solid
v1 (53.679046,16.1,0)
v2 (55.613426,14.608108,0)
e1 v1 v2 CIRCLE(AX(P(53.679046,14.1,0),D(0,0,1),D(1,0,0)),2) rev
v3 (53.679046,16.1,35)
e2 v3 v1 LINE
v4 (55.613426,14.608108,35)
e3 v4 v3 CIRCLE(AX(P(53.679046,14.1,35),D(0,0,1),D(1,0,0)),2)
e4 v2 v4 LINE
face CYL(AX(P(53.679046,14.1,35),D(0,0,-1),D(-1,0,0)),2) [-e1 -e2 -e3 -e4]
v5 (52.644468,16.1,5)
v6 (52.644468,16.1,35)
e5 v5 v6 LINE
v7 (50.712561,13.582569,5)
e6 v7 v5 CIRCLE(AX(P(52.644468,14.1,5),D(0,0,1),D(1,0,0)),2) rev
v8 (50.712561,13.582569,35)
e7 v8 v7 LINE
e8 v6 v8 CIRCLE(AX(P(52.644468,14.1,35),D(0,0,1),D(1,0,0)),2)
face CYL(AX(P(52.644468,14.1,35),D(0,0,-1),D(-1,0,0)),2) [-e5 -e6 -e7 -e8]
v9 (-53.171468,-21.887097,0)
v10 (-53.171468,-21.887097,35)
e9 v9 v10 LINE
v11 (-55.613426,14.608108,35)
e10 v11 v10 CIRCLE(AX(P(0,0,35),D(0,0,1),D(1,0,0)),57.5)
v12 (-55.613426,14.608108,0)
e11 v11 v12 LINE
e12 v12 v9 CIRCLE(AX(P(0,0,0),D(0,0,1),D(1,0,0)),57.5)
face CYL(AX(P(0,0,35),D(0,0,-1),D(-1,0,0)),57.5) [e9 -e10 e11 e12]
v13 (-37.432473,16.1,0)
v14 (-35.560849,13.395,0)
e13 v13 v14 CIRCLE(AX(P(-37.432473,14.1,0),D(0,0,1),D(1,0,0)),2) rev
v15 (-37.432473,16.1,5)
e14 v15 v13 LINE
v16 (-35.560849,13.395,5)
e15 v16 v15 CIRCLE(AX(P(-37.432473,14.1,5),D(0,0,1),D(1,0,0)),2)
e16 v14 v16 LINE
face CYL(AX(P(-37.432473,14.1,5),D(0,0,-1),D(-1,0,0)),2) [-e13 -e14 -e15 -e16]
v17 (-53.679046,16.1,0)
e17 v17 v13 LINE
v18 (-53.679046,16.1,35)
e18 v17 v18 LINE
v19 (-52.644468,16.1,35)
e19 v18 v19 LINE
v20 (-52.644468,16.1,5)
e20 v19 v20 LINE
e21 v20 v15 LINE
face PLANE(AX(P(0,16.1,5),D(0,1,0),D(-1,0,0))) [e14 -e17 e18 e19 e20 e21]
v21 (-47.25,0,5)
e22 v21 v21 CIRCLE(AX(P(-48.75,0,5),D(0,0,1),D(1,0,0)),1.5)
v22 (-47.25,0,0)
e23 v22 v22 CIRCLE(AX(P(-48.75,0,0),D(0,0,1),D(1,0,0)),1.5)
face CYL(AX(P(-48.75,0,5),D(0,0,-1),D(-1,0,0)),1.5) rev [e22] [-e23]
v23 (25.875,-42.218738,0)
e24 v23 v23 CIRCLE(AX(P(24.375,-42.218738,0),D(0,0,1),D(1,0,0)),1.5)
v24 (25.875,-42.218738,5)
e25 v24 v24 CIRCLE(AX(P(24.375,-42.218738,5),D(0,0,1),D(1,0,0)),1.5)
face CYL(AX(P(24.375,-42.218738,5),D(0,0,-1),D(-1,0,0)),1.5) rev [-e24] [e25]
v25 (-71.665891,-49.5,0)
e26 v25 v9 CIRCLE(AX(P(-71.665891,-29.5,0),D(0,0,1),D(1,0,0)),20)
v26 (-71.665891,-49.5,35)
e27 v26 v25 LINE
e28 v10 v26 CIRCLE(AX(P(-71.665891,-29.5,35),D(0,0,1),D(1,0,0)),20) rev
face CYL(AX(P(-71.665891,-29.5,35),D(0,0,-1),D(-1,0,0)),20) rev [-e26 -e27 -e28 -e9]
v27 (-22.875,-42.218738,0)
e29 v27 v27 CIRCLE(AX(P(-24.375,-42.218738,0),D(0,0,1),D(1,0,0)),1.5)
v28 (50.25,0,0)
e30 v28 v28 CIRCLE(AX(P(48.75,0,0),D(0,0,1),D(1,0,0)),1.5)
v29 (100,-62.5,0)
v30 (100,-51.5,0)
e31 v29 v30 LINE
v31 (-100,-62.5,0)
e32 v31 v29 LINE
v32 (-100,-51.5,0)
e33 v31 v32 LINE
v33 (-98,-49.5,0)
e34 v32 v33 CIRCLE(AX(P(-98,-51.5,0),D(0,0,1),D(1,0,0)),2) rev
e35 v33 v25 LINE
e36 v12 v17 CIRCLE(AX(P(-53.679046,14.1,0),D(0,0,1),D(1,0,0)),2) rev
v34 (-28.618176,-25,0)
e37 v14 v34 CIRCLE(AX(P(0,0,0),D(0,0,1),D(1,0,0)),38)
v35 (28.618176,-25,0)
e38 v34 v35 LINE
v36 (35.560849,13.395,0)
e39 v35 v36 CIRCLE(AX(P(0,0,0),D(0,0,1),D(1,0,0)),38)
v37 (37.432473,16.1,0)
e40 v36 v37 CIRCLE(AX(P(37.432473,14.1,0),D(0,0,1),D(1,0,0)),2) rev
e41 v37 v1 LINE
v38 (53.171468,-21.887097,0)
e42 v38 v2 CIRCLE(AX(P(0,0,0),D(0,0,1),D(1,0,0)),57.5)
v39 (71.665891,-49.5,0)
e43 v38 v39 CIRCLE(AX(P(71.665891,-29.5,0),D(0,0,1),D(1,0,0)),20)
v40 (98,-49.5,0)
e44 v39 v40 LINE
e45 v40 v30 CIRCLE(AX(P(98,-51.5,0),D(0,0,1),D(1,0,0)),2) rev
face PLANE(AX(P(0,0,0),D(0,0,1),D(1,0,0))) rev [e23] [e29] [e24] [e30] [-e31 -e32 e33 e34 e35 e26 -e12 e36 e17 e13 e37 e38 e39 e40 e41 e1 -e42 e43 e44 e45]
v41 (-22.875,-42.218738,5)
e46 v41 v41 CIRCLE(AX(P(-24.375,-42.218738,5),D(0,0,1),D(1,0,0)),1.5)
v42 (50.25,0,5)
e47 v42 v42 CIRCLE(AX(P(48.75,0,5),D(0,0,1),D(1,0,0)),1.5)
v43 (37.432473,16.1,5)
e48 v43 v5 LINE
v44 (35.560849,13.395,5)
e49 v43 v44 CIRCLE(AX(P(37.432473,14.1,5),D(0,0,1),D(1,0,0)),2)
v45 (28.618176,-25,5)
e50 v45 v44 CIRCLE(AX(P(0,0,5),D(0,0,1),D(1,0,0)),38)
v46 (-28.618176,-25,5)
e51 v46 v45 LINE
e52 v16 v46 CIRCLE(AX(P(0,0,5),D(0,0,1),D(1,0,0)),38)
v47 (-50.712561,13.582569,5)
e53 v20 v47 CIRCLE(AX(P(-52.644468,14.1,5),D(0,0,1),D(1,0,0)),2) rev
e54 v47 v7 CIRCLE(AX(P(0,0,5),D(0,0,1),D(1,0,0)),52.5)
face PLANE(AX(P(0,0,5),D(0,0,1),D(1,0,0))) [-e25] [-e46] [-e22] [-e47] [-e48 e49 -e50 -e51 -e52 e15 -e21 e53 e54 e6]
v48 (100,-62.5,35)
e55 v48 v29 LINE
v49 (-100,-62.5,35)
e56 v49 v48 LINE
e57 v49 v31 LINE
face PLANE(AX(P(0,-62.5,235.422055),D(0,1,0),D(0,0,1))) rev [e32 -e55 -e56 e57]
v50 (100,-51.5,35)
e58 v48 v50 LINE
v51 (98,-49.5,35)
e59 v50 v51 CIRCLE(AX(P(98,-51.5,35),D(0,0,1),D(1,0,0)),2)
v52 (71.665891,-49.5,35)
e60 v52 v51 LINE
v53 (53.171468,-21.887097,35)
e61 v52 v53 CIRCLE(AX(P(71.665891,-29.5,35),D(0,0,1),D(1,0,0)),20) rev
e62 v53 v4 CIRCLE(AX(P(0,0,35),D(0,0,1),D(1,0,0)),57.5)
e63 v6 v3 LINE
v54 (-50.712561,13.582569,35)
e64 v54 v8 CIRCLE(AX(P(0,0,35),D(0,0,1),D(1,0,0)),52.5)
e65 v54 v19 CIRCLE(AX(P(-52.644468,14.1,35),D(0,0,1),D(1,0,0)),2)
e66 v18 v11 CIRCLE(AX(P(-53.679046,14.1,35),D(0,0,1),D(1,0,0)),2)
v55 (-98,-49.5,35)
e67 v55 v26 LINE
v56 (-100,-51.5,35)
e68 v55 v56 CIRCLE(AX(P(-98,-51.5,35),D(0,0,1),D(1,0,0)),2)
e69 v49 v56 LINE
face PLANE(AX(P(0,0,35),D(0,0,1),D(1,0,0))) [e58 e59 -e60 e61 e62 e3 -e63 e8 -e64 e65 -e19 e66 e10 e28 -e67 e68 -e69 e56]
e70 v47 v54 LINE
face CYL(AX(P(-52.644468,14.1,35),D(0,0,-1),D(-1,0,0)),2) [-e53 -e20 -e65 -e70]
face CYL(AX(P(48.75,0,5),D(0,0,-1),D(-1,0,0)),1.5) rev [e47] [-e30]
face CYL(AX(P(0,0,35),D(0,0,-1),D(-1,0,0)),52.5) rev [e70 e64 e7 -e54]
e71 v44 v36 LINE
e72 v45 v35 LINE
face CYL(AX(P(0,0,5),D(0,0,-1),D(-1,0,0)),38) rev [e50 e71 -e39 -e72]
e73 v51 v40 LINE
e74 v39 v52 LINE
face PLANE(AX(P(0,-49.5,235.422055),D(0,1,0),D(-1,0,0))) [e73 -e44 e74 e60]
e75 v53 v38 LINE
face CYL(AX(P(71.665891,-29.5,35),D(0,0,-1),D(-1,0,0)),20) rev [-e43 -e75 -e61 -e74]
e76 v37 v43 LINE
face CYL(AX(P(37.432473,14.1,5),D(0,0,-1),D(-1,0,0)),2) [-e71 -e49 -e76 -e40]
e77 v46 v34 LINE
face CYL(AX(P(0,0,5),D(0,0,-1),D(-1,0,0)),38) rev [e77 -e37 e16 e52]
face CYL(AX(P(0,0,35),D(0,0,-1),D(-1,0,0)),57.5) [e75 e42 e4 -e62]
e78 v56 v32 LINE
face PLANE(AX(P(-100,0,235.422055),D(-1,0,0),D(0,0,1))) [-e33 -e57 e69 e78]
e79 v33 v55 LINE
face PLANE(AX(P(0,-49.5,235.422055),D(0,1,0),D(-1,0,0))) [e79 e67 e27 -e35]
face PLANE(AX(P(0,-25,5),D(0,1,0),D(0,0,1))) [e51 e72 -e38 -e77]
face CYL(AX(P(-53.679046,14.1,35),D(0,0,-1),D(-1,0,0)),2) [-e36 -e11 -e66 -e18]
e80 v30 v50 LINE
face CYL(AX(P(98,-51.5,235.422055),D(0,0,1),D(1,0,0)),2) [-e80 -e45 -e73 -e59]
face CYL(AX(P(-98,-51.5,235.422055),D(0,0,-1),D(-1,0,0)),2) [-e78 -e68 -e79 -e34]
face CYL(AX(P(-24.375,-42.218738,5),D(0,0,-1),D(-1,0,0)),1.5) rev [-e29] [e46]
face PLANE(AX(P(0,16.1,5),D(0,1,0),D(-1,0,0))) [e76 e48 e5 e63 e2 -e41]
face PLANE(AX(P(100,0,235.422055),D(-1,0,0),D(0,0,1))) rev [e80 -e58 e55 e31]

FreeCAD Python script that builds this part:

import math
import FreeCAD as App
import Part
import Sketcher

V = App.Vector
Q = App.Units.Quantity


def edges_at(feature, points):
    """Names of the edges that pass closest to the given points."""
    edges = feature.Shape.Edges
    near = lambda p: min(range(len(edges)), key=lambda i: edges[i].distToShape(Part.Vertex(*p))[0])
    return sorted({f"Edge{near(p) + 1}" for p in points})

doc = App.newDocument("Part")
body = doc.addObject("PartDesign::Body", "Body")

# Sketch on XY plane
sketch1 = body.newObject("Sketcher::SketchObject", "Sketch")
sketch1.AttachmentSupport = (doc.getObject("XY_Plane"), [""])
sketch1.MapMode = "FlatFace"
sketch1.addGeometry([
    Part.LineSegment(V(-34.4, 16.1, 0), V(-50, 16.1, 0)),  # 0
    Part.ArcOfCircle(Part.Circle(V(0, 0, 0), V(0, 0, 1), 52.5), math.radians(162), math.radians(360)),  # 1
    Part.ArcOfCircle(Part.Circle(V(0, 0, 0), V(0, 0, 1), 52.5), math.radians(0), math.radians(17.86)),  # 2
    Part.LineSegment(V(50, 16.1, 0), V(34.4, 16.1, 0)),  # 3
    Part.ArcOfCircle(Part.Circle(V(0, 0, 0), V(0, 0, 1), 38), math.radians(0), math.radians(25)),  # 4
    Part.ArcOfCircle(Part.Circle(V(0, 0, 0), V(0, 0, 1), 38), math.radians(-41), math.radians(0)),  # 5
    Part.LineSegment(V(28.6, -25, 0), V(-28.6, -25, 0)),  # 6
    Part.ArcOfCircle(Part.Circle(V(0, 0, 0), V(0, 0, 1), 38), math.radians(155), math.radians(221)),  # 7
    Part.Circle(V(-24.4, -42.2, 0), V(0, 0, 1), 1.5),  # 8
    Part.Circle(V(24.4, -42.2, 0), V(0, 0, 1), 1.5),  # 9
    Part.Circle(V(-48.8, 0, 0), V(0, 0, 1), 1.5),  # 10
    Part.Circle(V(48.8, 0, 0), V(0, 0, 1), 1.5),  # 11
], False)
sketch1.addConstraint([
    Sketcher.Constraint("Coincident", 0, 2, 1, 1),
    Sketcher.Constraint("Tangent", 1, 2, 2, 1),
    Sketcher.Constraint("Coincident", 2, 2, 3, 1),
    Sketcher.Constraint("Coincident", 3, 2, 4, 2),
    Sketcher.Constraint("Tangent", 4, 1, 5, 2),
    Sketcher.Constraint("Coincident", 5, 1, 6, 1),
    Sketcher.Constraint("Coincident", 6, 2, 7, 2),
    Sketcher.Constraint("Coincident", 7, 1, 0, 1),
    Sketcher.Constraint("Horizontal", 0),
    Sketcher.Constraint("Horizontal", 3),
    Sketcher.Constraint("Horizontal", 6),
    Sketcher.Constraint("Coincident", 1, 3, -1, 1),
    Sketcher.Constraint("Coincident", 4, 3, -1, 1),
    Sketcher.Constraint("Coincident", 7, 3, -1, 1),
    Sketcher.Constraint("Equal", 1, 2),
    Sketcher.Constraint("Equal", 4, 5),
    Sketcher.Constraint("Equal", 5, 7),
    Sketcher.Constraint("Equal", 8, 9),
    Sketcher.Constraint("Equal", 9, 10),
    Sketcher.Constraint("Equal", 10, 11),
    Sketcher.Constraint("Symmetric", 10, 3, 11, 3, -1, 1),
    Sketcher.Constraint("Symmetric", 8, 3, 9, 3, -2),
    Sketcher.Constraint("PointOnObject", 10, 3, -1),
    Sketcher.Constraint("PointOnObject", 1, 2, -1),
    Sketcher.Constraint("PointOnObject", 4, 1, -1),
    Sketcher.Constraint("Horizontal", 0, 2, 2, 2),
    Sketcher.Constraint("Diameter", 8, Q("3 mm")),
    Sketcher.Constraint("Radius", 4, Q("38 mm")),
    Sketcher.Constraint("Radius", 1, Q("52.5 mm")),
    Sketcher.Constraint("DistanceY", 5, 1, -1, 1, Q("25 mm")),
    Sketcher.Constraint("DistanceY", -1, 1, 0, 2, Q("16.1 mm")),
    Sketcher.Constraint("DistanceX", 10, 3, -1, 1, Q("48.75 mm")),
    Sketcher.Constraint("DistanceX", 8, 3, 9, 3, Q("48.75 mm")),
    Sketcher.Constraint("DistanceY", 8, 3, -1, 1, Q("42.218738 mm")),
])
pad1 = body.newObject("PartDesign::Pad", "Pad")
pad1.Profile = sketch1
pad1.Length = 5

# Sketch on XY plane
sketch2 = body.newObject("Sketcher::SketchObject", "Sketch001")
sketch2.AttachmentSupport = (doc.getObject("XY_Plane"), [""])
sketch2.MapMode = "FlatFace"
sketch2.addGeometry([
    Part.ArcOfCircle(Part.Circle(V(0, 0, 0), V(0, 0, 1), 52), math.radians(162), math.radians(378)),
    Part.LineSegment(V(-50, 16, 0), V(-55, 16, 0)),
    Part.ArcOfCircle(Part.Circle(V(0, 0, 0), V(0, 0, 1), 58), math.radians(164), math.radians(376)),
    Part.LineSegment(V(55, 16, 0), V(50, 16, 0)),
], False)
sketch2.addConstraint([
    Sketcher.Constraint("Coincident", 0, 1, 1, 1),
    Sketcher.Constraint("Coincident", 1, 2, 2, 1),
    Sketcher.Constraint("Coincident", 2, 2, 3, 1),
    Sketcher.Constraint("Coincident", 3, 2, 0, 2),
    Sketcher.Constraint("Horizontal", 1),
    Sketcher.Constraint("Horizontal", 3),
    Sketcher.Constraint("Coincident", 0, 3, -1, 1),
    Sketcher.Constraint("Coincident", 2, 3, -1, 1),
    Sketcher.Constraint("Horizontal", 1, 2, 2, 2),
    Sketcher.Constraint("Radius", 0, Q("52.5 mm")),
    Sketcher.Constraint("Radius", 2, Q("57.5 mm")),
    Sketcher.Constraint("DistanceY", -1, 1, 0, 1, Q("16.1 mm")),
])
pad2 = body.newObject("PartDesign::Pad", "Pad001")
pad2.Profile = sketch2
pad2.Length = 35
doc.recompute()

fillet = body.newObject("PartDesign::Fillet", "Fillet")
fillet.Base = (pad2, edges_at(pad2, [
    (34.421, 16.1, 2.5),
    (-34.421, 16.1, 2.5),
    (-49.97, 16.1, 20),
    (-55.2, 16.1, 17.5),
    (55.2, 16.1, 17.5),
    (49.97, 16.1, 20),
]))
fillet.Radius = 2

# Sketch on XY plane
sketch3 = body.newObject("Sketcher::SketchObject", "Sketch002")
sketch3.AttachmentSupport = (doc.getObject("XY_Plane"), [""])
sketch3.MapMode = "FlatFace"
sketch3.addGeometry([
    Part.ArcOfCircle(Part.Circle(V(0, 0, 0), V(0, 0, 1), 57), math.radians(-121), math.radians(-90)),  # 0
    Part.LineSegment(V(-29, -50, 0), V(-100, -50, 0)),  # 1
    Part.LineSegment(V(-100, -50, 0), V(-100, -62, 0)),  # 2
    Part.LineSegment(V(-100, -62, 0), V(100, -62, 0)),  # 3
    Part.LineSegment(V(100, -62, 0), V(100, -50, 0)),  # 4
    Part.LineSegment(V(100, -50, 0), V(29, -50, 0)),  # 5
    Part.ArcOfCircle(Part.Circle(V(0, 0, 0), V(0, 0, 1), 57), math.radians(-90), math.radians(-59)),  # 6
], False)
sketch3.addConstraint([
    Sketcher.Constraint("Coincident", 0, 1, 1, 1),
    Sketcher.Constraint("Coincident", 1, 2, 2, 1),
    Sketcher.Constraint("Coincident", 2, 2, 3, 1),
    Sketcher.Constraint("Coincident", 3, 2, 4, 1),
    Sketcher.Constraint("Coincident", 4, 2, 5, 1),
    Sketcher.Constraint("Coincident", 5, 2, 6, 2),
    Sketcher.Constraint("Tangent", 6, 1, 0, 2),
    Sketcher.Constraint("Horizontal", 1),
    Sketcher.Constraint("Vertical", 2),
    Sketcher.Constraint("Horizontal", 3),
    Sketcher.Constraint("Vertical", 4),
    Sketcher.Constraint("Horizontal", 5),
    Sketcher.Constraint("Coincident", 0, 3, -1, 1),
    Sketcher.Constraint("Equal", 0, 6),
    Sketcher.Constraint("Symmetric", 1, 2, 4, 2, -2),
    Sketcher.Constraint("PointOnObject", 6, 1, -2),
    Sketcher.Constraint("Radius", 0, Q("57.5 mm")),
    Sketcher.Constraint("DistanceX", 3, 1, 3, 2, Q("200 mm")),
    Sketcher.Constraint("DistanceY", 2, 2, 2, 1, Q("13 mm")),
    Sketcher.Constraint("DistanceY", 6, 1, 5, 2, Q("8 mm")),
])
pad3 = body.newObject("PartDesign::Pad", "Pad002")
pad3.Profile = sketch3
pad3.Length = 35
doc.recompute()

fillet2 = body.newObject("PartDesign::Fillet", "Fillet001")
fillet2.Base = (pad3, edges_at(pad3, [(-29.257, -49.5, 17.5), (29.257, -49.5, 17.5)]))
fillet2.Radius = 20
doc.recompute()

fillet3 = body.newObject("PartDesign::Fillet", "Fillet002")
fillet3.Base = (fillet2, edges_at(fillet2, [(100, -49.5, 17.5), (-100, -49.5, 17.5)]))
fillet3.Radius = 2

doc.recompute()
